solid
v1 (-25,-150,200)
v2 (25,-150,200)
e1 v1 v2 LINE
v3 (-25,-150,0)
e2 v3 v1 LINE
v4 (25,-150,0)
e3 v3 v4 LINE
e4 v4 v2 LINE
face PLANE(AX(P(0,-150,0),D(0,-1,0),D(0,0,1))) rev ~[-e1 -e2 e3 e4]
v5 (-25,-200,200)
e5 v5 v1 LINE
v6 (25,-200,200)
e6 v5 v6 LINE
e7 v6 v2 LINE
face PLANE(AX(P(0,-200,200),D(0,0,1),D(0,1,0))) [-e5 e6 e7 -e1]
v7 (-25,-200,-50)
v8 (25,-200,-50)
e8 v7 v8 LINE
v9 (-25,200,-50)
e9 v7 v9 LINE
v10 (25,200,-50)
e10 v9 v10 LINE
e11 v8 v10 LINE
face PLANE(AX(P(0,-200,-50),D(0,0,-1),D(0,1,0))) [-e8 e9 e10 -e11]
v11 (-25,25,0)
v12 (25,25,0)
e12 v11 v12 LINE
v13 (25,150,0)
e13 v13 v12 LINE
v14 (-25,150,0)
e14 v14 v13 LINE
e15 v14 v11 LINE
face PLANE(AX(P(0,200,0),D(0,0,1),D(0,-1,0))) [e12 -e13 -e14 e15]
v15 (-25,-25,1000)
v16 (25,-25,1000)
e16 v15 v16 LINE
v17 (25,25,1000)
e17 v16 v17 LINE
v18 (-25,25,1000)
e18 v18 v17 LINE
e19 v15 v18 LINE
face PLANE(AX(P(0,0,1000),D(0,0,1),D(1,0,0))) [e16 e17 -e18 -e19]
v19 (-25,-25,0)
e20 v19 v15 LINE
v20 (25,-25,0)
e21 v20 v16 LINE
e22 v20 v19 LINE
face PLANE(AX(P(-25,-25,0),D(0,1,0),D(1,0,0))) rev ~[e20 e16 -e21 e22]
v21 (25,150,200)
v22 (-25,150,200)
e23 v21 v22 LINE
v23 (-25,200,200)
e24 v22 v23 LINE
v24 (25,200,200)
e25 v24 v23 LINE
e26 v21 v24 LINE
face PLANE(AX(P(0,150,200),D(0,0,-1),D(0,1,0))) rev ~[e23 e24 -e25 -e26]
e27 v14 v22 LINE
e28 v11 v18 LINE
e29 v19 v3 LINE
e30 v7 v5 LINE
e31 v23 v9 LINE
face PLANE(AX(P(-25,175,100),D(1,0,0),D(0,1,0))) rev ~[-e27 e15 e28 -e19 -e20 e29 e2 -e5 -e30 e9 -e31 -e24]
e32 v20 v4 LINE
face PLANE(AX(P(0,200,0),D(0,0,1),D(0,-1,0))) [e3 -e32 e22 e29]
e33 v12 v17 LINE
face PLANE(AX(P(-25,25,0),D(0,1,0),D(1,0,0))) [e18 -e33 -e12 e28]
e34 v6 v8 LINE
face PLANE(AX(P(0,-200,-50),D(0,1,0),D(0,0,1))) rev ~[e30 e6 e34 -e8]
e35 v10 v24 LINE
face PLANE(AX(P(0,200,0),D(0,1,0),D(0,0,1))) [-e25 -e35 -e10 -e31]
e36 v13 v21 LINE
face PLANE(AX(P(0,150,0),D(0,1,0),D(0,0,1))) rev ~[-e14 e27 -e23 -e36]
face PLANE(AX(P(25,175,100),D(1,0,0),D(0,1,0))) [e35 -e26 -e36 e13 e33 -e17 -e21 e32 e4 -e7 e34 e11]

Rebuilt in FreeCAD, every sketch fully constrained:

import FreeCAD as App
import Part
import Sketcher

doc = App.newDocument("Part")
body = doc.addObject("PartDesign::Body", "Body")

# Sketch on XY plane
sketch1 = body.newObject("Sketcher::SketchObject", "Sketch")
sketch1.AttachmentSupport = (doc.getObject("XY_Plane"), [""])
sketch1.MapMode = "FlatFace"
sketch1.addGeometry([
    Part.LineSegment(App.Vector(-25, 25, 0), App.Vector(-25, -25, 0)),
    Part.LineSegment(App.Vector(-25, -25, 0), App.Vector(25, -25, 0)),
    Part.LineSegment(App.Vector(25, -25, 0), App.Vector(25, 25, 0)),
    Part.LineSegment(App.Vector(25, 25, 0), App.Vector(-25, 25, 0)),
], False)
sketch1.addConstraint([
    Sketcher.Constraint("Coincident", 0, 2, 1, 1),
    Sketcher.Constraint("Coincident", 1, 2, 2, 1),
    Sketcher.Constraint("Coincident", 2, 2, 3, 1),
    Sketcher.Constraint("Coincident", 3, 2, 0, 1),
    Sketcher.Constraint("Vertical", 0),
    Sketcher.Constraint("Horizontal", 1),
    Sketcher.Constraint("Vertical", 2),
    Sketcher.Constraint("Horizontal", 3),
    Sketcher.Constraint("Symmetric", 0, 2, 2, 2, -1, 1),
    Sketcher.Constraint("Equal", 3, 0),
    Sketcher.Constraint("DistanceX", 1, 1, 1, 2, 50.0),
])
pad1 = body.newObject("PartDesign::Pad", "Pad")
pad1.Profile = sketch1
pad1.Length = 1000

# Sketch on YZ plane
sketch2 = body.newObject("Sketcher::SketchObject", "Sketch001")
sketch2.AttachmentSupport = (doc.getObject("YZ_Plane"), [""])
sketch2.MapMode = "FlatFace"
sketch2.addGeometry([
    Part.LineSegment(App.Vector(-200, 0, 0), App.Vector(-200, -50, 0)),
    Part.LineSegment(App.Vector(-200, -50, 0), App.Vector(200, -50, 0)),
    Part.LineSegment(App.Vector(200, -50, 0), App.Vector(200, 0, 0)),
    Part.LineSegment(App.Vector(200, 0, 0), App.Vector(-200, 0, 0)),
], False)
sketch2.addConstraint([
    Sketcher.Constraint("Coincident", 0, 2, 1, 1),
    Sketcher.Constraint("Coincident", 1, 2, 2, 1),
    Sketcher.Constraint("Coincident", 2, 2, 3, 1),
    Sketcher.Constraint("Coincident", 3, 2, 0, 1),
    Sketcher.Constraint("Vertical", 0),
    Sketcher.Constraint("Horizontal", 1),
    Sketcher.Constraint("Vertical", 2),
    Sketcher.Constraint("Horizontal", 3),
    Sketcher.Constraint("Symmetric", 2, 2, 3, 2, -1, 1),
    Sketcher.Constraint("DistanceX", 1, 1, 1, 2, 400.0),
    Sketcher.Constraint("DistanceY", 0, 2, 0, 1, 50.0),
])
pad2 = body.newObject("PartDesign::Pad", "Pad001")
pad2.Profile = sketch2
pad2.Type = "TwoLengths"
pad2.Length = 25
pad2.Length2 = 25

# Sketch on YZ plane
sketch3 = body.newObject("Sketcher::SketchObject", "Sketch002")
sketch3.AttachmentSupport = (doc.getObject("YZ_Plane"), [""])
sketch3.MapMode = "FlatFace"
sketch3.addGeometry([
    Part.LineSegment(App.Vector(150, 200, 0), App.Vector(150, 0, 0)),  # 0
    Part.LineSegment(App.Vector(150, 0, 0), App.Vector(200, 0, 0)),  # 1
    Part.LineSegment(App.Vector(200, 0, 0), App.Vector(200, 200, 0)),  # 2
    Part.LineSegment(App.Vector(200, 200, 0), App.Vector(150, 200, 0)),  # 3
    Part.LineSegment(App.Vector(-200, 200, 0), App.Vector(-200, 0, 0)),  # 4
    Part.LineSegment(App.Vector(-200, 0, 0), App.Vector(-150, 0, 0)),  # 5
    Part.LineSegment(App.Vector(-150, 0, 0), App.Vector(-150, 200, 0)),  # 6
    Part.LineSegment(App.Vector(-150, 200, 0), App.Vector(-200, 200, 0)),  # 7
], False)
sketch3.addConstraint([
    Sketcher.Constraint("Coincident", 0, 2, 1, 1),
    Sketcher.Constraint("Coincident", 1, 2, 2, 1),
    Sketcher.Constraint("Coincident", 2, 2, 3, 1),
    Sketcher.Constraint("Coincident", 3, 2, 0, 1),
    Sketcher.Constraint("Coincident", 4, 2, 5, 1),
    Sketcher.Constraint("Coincident", 5, 2, 6, 1),
    Sketcher.Constraint("Coincident", 6, 2, 7, 1),
    Sketcher.Constraint("Coincident", 7, 2, 4, 1),
    Sketcher.Constraint("Vertical", 0),
    Sketcher.Constraint("Horizontal", 1),
    Sketcher.Constraint("Vertical", 2),
    Sketcher.Constraint("Horizontal", 3),
    Sketcher.Constraint("Vertical", 4),
    Sketcher.Constraint("Horizontal", 5),
    Sketcher.Constraint("Vertical", 6),
    Sketcher.Constraint("Horizontal", 7),
    Sketcher.Constraint("Symmetric", 1, 2, 4, 2, -1, 1),
    Sketcher.Constraint("Symmetric", 0, 2, 5, 2, -2),
    Sketcher.Constraint("Horizontal", 3, 2, 6, 2),
    Sketcher.Constraint("DistanceX", 1, 1, 1, 2, 50.0),
    Sketcher.Constraint("DistanceY", 0, 2, 0, 1, 200.0),
    Sketcher.Constraint("DistanceX", -1, 1, 0, 2, 150.0),
])
pad3 = body.newObject("PartDesign::Pad", "Pad002")
pad3.Profile = sketch3
pad3.Type = "TwoLengths"
pad3.Length = 25
pad3.Length2 = 25

doc.recompute()
